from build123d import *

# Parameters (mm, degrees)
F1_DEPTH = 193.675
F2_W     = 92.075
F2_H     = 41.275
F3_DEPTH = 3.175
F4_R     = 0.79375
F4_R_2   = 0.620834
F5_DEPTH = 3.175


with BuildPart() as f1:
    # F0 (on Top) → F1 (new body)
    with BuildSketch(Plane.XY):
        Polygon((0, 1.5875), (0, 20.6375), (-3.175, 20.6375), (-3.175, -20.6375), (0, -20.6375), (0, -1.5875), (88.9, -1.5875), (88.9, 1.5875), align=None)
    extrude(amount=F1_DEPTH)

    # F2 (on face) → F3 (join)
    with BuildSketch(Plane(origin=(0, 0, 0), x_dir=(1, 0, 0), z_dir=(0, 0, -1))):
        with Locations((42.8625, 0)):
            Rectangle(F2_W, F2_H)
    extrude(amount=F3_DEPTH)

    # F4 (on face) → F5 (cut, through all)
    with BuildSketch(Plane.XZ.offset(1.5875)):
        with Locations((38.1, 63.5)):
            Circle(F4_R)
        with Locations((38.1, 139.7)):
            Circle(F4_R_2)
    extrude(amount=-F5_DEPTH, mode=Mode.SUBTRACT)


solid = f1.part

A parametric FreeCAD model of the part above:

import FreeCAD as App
import Part
import Sketcher
from FreeCAD import Vector
Q = App.Units.Quantity


def add_polygon(sketch, points):
    """Adds a closed chain of lines whose ends are joined by coincident constraints."""
    first, n = sketch.GeometryCount, len(points)
    for a, b in zip(points, points[1:] + points[:1]):
        sketch.addGeometry(Part.LineSegment(App.Vector(*a, 0), App.Vector(*b, 0)), False)
    for i in range(n):
        sketch.addConstraint(Sketcher.Constraint("Coincident", first + i, 2, first + (i + 1) % n, 1))

doc = App.newDocument("Part")
body = doc.addObject("PartDesign::Body", "Body")

sketch1 = body.newObject("Sketcher::SketchObject", "Sketch")
sketch1.AttachmentSupport = (doc.getObject("XY_Plane"), [""])
sketch1.MapMode = "FlatFace"
add_polygon(sketch1, [(0, 1.6), (0, 20.6), (-3.2, 20.6), (-3.2, -20.6), (0, -20.6), (0, -1.6), (88.9, -1.6), (88.9, 1.6)])
sketch1.addConstraint([
    Sketcher.Constraint("Vertical", 0),
    Sketcher.Constraint("Horizontal", 1),
    Sketcher.Constraint("Vertical", 2),
    Sketcher.Constraint("Horizontal", 3),
    Sketcher.Constraint("Vertical", 4),
    Sketcher.Constraint("Horizontal", 5),
    Sketcher.Constraint("Vertical", 6),
    Sketcher.Constraint("Horizontal", 7),
    Sketcher.Constraint("Symmetric", 0, 2, 3, 2, -1, 1),
    Sketcher.Constraint("Symmetric", 4, 2, 7, 2, -1),
    Sketcher.Constraint("Equal", 3, 6),
    Sketcher.Constraint("DistanceX", 5, 1, 5, 2, Q("3.5 in")),
    Sketcher.Constraint("DistanceY", 0, 1, 0, 2, Q("0.75 in")),
    Sketcher.Constraint("DistanceX", 1, 2, 1, 1, Q("0.125 in")),
])
pad1 = body.newObject("PartDesign::Pad", "Pad")
pad1.Profile = sketch1
pad1.Length = Q("7.625 in")

sketch2 = body.newObject("Sketcher::SketchObject", "Sketch001")
sketch2.AttachmentSupport = (doc.getObject("XY_Plane"), [""])
sketch2.MapMode = "FlatFace"
add_polygon(sketch2, [(-3, -21), (-3, 21), (89, 21), (89, -21)])
sketch2.addConstraint([
    Sketcher.Constraint("Vertical", 0),
    Sketcher.Constraint("Horizontal", 1),
    Sketcher.Constraint("Vertical", 2),
    Sketcher.Constraint("Horizontal", 3),
    Sketcher.Constraint("DistanceX", -1, 1, 1, 2, Q("3.5 in")),
    Sketcher.Constraint("DistanceX", 1, 1, 1, 2, Q("3.625 in")),
    Sketcher.Constraint("DistanceY", 0, 1, 0, 2, Q("1.625 in")),
    Sketcher.Constraint("DistanceY", -1, 1, 0, 2, Q("0.8125 in")),
])
pad2 = body.newObject("PartDesign::Pad", "Pad001")
pad2.Profile = sketch2
pad2.Length = Q("0.125 in")
pad2.Reversed = True

sketch3 = body.newObject("Sketcher::SketchObject", "Sketch002")
sketch3.AttachmentSupport = (doc.getObject("XZ_Plane"), [""])
sketch3.MapMode = "FlatFace"
sketch3.AttachmentOffset = App.Placement(Vector(0, 0, 0.0625 * 25.4), App.Rotation())
sketch3.addGeometry([
    Part.Circle(Vector(38.1, 63.5, 0), Vector(0, 0, 1), 0.8),
    Part.Circle(Vector(38.1, 139.7, 0), Vector(0, 0, 1), 0.6),
], False)
sketch3.addConstraint([
    Sketcher.Constraint("Vertical", 0, 3, 1, 3),
    Sketcher.Constraint("Diameter", 0, Q("0.0625 in")),
    Sketcher.Constraint("DistanceY", 0, 3, 1, 3, Q("3 in")),
    Sketcher.Constraint("DistanceX", -1, 1, 0, 3, Q("1.5 in")),
    Sketcher.Constraint("DistanceY", -1, 1, 0, 3, Q("2.5 in")),
    Sketcher.Constraint("Diameter", 1, Q("1.241668 mm")),
])
pocket1 = body.newObject("PartDesign::Pocket", "Pocket")
pocket1.Profile = sketch3
pocket1.Type = "ThroughAll"

doc.recompute()
